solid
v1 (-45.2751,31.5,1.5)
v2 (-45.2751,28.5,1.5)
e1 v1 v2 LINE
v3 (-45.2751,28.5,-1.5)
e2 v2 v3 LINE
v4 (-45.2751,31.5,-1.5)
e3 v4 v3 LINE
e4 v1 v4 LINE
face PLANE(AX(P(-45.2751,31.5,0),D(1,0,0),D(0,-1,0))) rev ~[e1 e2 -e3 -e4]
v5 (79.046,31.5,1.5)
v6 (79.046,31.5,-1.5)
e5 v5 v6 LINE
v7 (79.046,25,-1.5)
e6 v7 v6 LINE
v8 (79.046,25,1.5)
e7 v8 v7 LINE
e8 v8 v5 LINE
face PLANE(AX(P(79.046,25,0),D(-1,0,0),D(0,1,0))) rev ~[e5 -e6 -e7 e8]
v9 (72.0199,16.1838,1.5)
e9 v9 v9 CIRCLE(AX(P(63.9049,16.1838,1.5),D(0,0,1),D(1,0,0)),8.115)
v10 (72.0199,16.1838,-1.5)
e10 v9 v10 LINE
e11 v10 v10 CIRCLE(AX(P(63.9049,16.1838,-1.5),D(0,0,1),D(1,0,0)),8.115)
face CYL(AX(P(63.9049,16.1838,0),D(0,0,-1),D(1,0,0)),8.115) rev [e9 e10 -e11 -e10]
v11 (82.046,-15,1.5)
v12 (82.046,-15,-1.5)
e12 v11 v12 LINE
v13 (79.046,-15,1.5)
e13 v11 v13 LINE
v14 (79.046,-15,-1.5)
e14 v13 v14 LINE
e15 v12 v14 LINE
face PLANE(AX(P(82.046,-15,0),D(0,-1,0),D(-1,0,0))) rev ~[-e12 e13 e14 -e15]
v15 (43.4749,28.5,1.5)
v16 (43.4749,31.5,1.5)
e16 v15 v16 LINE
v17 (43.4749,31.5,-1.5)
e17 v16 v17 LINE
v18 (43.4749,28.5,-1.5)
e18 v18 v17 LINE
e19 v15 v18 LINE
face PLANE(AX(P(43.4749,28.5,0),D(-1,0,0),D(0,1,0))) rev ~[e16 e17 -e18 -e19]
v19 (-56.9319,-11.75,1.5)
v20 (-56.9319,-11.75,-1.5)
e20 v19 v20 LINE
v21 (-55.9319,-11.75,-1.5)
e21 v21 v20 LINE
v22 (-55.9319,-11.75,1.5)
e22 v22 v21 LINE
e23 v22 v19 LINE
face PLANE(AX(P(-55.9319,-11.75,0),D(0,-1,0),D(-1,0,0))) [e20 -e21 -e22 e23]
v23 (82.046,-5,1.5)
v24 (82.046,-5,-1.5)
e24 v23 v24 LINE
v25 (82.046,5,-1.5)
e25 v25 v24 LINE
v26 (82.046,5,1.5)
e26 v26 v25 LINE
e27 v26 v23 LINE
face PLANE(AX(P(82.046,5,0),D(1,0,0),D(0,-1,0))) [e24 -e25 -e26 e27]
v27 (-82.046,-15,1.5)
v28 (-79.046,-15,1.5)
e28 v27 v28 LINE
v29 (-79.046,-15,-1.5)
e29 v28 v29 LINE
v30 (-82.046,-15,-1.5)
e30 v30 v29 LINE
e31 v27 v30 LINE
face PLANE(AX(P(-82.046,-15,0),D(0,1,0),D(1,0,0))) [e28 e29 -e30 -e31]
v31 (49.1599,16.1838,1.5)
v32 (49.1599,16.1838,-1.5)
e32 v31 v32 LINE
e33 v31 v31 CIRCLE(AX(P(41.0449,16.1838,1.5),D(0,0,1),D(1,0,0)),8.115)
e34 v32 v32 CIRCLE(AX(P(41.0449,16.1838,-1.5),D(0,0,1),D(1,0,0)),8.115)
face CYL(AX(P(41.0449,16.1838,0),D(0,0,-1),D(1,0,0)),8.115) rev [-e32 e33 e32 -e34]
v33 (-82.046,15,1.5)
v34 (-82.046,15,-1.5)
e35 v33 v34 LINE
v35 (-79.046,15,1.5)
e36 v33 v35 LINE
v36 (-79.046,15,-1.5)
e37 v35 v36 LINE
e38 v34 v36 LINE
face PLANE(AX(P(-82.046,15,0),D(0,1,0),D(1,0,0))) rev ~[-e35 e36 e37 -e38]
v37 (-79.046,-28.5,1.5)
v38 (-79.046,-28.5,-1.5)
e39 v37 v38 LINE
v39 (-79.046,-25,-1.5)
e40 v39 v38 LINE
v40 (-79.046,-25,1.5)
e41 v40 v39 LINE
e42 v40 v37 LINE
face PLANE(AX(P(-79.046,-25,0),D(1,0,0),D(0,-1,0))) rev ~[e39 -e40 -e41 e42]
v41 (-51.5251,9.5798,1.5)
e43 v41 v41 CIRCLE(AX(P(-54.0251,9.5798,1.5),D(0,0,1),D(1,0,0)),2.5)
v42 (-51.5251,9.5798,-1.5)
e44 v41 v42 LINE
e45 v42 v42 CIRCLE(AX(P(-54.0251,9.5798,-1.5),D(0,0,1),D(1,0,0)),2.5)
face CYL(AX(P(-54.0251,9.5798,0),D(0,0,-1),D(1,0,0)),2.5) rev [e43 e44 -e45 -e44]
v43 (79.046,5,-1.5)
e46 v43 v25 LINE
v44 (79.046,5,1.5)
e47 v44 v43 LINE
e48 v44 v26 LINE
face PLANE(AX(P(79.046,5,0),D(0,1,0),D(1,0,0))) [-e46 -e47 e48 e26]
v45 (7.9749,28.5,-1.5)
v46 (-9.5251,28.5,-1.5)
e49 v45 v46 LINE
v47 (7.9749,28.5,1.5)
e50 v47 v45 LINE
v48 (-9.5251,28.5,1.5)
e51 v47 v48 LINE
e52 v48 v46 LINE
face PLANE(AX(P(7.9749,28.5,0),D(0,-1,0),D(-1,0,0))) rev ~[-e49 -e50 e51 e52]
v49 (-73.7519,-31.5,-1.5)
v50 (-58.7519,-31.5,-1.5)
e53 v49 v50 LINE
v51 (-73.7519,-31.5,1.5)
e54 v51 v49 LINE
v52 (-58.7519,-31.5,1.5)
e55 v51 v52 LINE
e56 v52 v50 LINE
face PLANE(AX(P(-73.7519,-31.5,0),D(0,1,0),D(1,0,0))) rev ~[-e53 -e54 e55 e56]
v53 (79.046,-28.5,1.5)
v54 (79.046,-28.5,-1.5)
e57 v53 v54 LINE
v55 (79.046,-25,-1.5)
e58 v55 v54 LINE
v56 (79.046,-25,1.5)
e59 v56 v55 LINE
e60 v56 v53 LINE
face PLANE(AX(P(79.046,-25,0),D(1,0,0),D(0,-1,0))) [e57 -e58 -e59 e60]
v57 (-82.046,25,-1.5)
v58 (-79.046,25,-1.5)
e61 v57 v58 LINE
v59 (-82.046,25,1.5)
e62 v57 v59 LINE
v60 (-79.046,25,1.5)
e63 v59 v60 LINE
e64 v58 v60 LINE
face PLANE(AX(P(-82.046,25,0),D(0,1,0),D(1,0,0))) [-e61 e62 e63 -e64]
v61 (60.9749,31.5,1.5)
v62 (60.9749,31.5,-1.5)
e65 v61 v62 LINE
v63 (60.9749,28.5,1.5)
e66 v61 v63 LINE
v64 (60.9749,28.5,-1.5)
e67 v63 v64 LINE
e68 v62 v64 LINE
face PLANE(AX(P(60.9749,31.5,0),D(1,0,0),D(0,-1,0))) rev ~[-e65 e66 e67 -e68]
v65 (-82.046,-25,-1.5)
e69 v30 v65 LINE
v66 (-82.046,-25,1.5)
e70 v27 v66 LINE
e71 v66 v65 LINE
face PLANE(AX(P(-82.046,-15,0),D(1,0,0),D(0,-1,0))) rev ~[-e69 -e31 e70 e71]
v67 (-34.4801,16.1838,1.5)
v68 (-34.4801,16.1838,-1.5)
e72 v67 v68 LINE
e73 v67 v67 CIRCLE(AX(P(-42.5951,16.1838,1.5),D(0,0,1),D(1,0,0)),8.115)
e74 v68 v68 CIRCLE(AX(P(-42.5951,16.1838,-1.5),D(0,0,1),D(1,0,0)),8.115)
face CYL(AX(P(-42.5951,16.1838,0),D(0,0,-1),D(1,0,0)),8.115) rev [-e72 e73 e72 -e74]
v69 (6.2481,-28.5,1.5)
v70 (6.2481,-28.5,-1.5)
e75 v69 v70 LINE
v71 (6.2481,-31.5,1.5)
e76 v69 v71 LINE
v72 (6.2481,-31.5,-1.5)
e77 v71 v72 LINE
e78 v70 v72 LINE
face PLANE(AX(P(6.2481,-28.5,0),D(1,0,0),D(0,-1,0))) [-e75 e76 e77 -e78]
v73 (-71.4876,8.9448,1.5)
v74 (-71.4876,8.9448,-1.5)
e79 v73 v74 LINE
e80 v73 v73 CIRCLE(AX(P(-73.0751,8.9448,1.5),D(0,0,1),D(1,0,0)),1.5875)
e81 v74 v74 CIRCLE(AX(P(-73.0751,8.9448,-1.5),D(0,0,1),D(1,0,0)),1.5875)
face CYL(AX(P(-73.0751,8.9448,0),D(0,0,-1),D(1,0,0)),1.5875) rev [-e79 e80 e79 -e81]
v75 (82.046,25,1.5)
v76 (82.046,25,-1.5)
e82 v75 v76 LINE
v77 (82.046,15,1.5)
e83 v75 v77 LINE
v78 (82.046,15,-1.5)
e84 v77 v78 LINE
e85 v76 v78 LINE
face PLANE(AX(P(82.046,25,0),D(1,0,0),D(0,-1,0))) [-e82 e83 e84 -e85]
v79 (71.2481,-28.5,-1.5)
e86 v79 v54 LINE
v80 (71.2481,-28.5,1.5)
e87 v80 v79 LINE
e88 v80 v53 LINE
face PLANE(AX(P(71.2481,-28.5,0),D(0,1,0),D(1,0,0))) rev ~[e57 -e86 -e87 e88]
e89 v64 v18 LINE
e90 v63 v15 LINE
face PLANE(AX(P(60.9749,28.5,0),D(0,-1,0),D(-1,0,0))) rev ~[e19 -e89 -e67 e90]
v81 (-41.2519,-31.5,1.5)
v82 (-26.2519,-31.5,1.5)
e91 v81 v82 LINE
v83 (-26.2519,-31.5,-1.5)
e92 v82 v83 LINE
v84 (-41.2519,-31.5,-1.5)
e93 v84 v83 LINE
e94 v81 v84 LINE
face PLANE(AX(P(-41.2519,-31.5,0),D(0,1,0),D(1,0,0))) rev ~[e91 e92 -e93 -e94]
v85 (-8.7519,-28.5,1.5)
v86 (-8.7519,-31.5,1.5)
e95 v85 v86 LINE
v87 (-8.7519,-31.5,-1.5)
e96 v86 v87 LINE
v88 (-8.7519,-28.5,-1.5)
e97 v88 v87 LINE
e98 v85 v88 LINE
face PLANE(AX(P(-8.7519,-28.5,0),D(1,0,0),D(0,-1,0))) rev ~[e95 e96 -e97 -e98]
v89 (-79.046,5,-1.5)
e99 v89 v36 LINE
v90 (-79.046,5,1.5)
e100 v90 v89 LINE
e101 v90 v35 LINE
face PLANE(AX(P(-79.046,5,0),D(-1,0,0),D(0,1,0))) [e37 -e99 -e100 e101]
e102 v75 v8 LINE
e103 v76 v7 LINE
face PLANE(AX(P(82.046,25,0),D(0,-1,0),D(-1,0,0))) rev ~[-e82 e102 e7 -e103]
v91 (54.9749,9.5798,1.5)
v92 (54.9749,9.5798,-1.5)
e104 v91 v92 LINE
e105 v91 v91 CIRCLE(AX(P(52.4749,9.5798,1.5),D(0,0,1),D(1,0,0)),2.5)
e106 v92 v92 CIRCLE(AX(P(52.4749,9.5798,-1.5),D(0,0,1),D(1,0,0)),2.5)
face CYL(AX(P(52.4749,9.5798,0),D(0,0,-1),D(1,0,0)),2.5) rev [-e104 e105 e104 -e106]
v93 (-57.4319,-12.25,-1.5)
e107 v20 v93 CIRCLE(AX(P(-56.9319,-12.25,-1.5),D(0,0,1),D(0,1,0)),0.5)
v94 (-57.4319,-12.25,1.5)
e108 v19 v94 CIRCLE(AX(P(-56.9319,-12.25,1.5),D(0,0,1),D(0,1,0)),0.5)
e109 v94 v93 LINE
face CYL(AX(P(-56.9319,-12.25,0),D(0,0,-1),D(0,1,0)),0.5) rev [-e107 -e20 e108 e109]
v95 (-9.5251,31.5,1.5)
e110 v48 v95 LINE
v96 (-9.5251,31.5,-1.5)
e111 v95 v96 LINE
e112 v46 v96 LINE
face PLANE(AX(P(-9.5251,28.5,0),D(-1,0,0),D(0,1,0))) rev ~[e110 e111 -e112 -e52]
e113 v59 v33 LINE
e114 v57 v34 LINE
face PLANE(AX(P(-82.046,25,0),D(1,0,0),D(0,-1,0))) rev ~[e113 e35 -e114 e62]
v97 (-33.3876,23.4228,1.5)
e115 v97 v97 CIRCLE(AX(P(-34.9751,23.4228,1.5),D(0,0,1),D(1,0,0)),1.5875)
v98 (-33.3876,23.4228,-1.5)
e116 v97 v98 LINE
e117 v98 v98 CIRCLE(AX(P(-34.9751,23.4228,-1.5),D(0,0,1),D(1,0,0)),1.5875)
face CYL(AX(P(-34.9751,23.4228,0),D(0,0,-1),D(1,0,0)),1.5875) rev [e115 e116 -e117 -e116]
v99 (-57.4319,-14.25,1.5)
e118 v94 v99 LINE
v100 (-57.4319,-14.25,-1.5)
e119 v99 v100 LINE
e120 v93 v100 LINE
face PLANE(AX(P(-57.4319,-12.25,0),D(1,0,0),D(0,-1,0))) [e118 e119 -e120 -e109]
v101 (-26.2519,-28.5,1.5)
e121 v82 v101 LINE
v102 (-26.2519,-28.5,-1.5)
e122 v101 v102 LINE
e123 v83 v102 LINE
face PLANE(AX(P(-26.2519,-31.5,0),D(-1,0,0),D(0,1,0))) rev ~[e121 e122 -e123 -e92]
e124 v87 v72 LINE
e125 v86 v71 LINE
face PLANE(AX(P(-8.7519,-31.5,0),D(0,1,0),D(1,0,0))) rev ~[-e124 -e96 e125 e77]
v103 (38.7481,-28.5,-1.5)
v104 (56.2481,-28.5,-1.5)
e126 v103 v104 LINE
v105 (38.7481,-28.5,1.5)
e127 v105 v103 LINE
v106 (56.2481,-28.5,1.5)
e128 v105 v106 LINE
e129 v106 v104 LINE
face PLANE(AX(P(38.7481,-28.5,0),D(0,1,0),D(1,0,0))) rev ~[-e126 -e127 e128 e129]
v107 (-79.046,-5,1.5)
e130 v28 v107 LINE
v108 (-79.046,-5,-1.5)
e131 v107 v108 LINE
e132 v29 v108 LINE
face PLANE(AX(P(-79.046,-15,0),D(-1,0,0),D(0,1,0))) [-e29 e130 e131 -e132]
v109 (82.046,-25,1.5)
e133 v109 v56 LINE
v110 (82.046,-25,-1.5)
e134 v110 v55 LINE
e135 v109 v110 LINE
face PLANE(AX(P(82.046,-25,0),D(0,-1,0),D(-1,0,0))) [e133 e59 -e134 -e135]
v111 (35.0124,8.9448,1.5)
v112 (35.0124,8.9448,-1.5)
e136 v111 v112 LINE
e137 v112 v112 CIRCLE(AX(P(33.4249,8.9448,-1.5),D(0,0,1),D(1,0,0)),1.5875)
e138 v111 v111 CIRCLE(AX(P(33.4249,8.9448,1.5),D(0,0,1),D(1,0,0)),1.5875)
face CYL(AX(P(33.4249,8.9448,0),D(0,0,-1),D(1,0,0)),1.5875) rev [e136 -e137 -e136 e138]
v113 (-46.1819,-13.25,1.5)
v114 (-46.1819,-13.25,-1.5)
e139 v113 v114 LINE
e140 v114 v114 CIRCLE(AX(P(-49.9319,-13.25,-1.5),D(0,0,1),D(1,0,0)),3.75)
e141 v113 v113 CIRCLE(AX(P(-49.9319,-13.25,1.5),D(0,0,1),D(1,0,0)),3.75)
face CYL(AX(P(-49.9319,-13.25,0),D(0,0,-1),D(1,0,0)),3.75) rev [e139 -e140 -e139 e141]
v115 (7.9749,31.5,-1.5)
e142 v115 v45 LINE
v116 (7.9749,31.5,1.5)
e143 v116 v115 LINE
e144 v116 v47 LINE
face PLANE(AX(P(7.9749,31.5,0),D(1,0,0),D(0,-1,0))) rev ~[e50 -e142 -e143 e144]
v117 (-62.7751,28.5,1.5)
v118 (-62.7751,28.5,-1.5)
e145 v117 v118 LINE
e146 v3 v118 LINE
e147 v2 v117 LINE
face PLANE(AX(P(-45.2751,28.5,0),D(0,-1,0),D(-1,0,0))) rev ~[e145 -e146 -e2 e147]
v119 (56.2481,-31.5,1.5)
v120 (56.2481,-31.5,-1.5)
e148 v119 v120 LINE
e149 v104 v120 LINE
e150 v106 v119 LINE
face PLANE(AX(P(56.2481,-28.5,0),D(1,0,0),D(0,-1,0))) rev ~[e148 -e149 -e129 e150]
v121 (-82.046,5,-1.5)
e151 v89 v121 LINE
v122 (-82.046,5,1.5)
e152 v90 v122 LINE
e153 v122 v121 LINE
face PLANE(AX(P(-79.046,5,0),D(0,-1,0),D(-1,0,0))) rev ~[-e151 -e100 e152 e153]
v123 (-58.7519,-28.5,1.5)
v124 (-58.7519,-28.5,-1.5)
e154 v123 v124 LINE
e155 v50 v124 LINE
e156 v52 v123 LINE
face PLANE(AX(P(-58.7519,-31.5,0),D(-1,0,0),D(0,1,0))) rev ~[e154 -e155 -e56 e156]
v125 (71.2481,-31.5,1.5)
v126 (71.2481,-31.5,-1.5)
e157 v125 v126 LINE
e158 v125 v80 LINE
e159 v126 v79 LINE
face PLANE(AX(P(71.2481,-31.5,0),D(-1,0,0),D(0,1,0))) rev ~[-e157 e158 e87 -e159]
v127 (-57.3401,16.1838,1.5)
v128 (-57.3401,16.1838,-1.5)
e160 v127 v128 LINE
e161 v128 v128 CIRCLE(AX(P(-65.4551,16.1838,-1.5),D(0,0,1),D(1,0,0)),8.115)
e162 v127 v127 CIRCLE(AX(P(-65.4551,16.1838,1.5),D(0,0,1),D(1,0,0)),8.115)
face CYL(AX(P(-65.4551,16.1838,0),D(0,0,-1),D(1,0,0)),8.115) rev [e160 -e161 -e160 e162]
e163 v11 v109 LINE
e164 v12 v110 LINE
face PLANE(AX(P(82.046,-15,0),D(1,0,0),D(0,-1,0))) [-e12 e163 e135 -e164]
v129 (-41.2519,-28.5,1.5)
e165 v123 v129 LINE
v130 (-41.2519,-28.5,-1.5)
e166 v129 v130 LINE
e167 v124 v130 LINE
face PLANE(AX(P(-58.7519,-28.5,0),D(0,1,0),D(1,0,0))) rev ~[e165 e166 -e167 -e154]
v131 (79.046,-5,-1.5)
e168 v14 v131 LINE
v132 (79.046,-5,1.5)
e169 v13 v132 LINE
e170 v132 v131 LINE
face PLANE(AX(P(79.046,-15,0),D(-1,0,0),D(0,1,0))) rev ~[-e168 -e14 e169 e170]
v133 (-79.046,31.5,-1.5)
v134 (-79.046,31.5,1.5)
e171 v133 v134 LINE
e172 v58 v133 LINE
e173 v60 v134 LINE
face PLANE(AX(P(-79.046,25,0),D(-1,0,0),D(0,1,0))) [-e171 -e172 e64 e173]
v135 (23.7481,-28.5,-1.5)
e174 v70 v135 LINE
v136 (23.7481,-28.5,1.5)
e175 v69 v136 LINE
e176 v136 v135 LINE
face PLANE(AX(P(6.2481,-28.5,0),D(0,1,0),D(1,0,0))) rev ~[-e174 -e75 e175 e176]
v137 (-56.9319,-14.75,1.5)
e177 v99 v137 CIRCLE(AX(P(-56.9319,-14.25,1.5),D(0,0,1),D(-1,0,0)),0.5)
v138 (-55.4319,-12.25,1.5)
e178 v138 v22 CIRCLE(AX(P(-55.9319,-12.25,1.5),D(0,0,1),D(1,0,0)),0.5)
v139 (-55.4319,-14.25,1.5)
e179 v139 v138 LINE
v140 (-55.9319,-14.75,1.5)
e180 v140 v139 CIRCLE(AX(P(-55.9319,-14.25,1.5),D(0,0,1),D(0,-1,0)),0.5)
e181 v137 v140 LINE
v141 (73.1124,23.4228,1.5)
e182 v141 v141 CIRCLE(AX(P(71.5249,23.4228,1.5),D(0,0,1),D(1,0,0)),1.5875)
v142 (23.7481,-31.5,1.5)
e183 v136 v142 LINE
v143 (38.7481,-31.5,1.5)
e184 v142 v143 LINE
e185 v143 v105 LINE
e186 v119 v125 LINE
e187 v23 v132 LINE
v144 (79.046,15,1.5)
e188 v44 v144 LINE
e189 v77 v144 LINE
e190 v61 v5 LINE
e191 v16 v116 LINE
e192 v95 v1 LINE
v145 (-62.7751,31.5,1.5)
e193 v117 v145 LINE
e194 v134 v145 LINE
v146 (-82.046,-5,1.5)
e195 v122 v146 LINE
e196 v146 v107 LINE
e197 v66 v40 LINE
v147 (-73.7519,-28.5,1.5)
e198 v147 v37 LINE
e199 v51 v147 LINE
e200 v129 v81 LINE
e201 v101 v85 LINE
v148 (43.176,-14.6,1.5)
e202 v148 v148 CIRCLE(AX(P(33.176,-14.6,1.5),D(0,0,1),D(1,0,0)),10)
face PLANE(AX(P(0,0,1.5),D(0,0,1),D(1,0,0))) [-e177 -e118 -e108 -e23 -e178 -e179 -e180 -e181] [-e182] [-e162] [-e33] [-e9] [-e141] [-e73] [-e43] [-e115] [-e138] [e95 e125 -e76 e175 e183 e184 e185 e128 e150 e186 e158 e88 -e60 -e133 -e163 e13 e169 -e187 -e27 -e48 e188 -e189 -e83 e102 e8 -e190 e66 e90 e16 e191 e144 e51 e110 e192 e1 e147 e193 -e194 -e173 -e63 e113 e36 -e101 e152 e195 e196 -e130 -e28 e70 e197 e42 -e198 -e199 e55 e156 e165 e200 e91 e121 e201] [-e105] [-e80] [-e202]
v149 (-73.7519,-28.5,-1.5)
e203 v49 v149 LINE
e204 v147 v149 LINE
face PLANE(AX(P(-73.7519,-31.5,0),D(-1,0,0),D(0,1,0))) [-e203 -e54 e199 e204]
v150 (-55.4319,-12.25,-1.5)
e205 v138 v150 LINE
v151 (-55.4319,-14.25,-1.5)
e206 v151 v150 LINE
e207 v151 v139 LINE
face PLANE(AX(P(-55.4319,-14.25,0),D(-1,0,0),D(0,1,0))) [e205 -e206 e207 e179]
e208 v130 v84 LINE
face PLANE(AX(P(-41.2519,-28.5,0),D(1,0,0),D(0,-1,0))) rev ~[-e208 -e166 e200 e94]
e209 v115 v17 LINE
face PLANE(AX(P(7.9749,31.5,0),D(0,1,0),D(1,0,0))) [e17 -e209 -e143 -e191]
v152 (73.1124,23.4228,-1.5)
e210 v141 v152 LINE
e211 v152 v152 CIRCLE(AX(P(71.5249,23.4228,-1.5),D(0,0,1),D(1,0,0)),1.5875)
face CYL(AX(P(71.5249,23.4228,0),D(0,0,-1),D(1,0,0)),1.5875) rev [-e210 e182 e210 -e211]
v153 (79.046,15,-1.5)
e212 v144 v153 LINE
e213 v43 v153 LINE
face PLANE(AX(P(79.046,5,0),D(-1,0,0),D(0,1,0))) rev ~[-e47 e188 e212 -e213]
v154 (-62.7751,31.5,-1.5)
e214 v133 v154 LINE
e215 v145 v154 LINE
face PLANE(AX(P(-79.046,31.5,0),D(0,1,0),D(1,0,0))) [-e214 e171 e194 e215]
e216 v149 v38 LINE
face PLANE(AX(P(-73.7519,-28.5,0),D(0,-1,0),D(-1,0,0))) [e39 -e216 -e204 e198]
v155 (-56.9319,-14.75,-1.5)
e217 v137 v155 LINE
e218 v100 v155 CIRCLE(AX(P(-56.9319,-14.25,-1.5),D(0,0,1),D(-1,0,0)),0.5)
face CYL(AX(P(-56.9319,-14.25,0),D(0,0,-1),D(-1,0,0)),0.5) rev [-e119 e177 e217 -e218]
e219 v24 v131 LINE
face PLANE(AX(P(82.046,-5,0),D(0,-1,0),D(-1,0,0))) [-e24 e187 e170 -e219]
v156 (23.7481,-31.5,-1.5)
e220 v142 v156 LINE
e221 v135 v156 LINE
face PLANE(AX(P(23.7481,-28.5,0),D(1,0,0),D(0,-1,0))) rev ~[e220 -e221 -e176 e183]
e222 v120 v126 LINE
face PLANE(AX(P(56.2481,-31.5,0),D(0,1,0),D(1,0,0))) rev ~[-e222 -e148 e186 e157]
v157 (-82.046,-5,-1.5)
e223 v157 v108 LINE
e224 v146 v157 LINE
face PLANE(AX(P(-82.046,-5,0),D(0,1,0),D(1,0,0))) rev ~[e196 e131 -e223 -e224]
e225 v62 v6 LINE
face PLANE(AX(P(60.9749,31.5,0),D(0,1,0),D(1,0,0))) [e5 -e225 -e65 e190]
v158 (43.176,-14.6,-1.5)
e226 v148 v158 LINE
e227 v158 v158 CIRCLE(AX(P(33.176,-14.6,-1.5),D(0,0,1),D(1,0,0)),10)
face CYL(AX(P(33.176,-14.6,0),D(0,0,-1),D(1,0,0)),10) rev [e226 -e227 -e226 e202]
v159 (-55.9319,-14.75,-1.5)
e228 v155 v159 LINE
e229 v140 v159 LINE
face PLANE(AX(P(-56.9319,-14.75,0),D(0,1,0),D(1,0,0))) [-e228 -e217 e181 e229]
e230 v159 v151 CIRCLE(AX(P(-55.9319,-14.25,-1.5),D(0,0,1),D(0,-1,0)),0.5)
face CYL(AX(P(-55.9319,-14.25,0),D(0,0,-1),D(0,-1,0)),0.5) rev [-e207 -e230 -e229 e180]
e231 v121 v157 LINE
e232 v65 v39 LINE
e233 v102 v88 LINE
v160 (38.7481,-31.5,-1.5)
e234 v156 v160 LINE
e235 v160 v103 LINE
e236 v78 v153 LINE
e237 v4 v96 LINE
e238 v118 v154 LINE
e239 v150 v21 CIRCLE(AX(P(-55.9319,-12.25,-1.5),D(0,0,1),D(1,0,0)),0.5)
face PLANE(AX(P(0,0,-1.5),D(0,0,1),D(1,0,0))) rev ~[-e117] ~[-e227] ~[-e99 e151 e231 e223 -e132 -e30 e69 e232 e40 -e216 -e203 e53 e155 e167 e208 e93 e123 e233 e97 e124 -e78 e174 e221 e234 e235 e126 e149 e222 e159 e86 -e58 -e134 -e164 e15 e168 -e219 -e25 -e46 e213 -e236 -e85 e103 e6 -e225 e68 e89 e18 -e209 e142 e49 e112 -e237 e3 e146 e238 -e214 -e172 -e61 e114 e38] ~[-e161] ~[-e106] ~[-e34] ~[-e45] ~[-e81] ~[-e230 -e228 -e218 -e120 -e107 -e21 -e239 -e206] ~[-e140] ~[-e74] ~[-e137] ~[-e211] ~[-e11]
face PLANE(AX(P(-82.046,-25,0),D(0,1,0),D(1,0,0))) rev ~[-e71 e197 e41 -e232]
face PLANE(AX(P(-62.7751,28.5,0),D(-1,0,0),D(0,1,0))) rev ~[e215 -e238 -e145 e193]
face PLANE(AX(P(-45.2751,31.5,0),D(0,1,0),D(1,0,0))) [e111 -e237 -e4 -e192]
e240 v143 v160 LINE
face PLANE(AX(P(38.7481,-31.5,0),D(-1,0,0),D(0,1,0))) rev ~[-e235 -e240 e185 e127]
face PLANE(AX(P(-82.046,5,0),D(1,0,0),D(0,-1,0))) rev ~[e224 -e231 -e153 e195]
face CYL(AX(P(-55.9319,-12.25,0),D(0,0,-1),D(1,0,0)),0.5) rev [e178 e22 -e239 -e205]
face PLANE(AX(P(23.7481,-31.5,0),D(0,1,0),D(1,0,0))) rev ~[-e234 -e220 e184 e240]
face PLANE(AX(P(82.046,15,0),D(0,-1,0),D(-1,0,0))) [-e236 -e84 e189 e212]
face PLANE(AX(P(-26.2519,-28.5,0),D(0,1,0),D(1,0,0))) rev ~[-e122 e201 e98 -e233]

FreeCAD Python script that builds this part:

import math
import FreeCAD as App
import Part
import Sketcher

V = App.Vector

doc = App.newDocument("Part")
body = doc.addObject("PartDesign::Body", "Body")

sketch1 = body.newObject("Sketcher::SketchObject", "Sketch")
sketch1.AttachmentSupport = (doc.getObject("XY_Plane"), [""])
sketch1.MapMode = "FlatFace"
sketch1.addGeometry(Part.LineSegment(V(-62.8, 31.5, 0), V(-79, 31.5, 0)), False)
sketch1.addGeometry(Part.LineSegment(V(-79, 31.5, 0), V(-79, 25, 0)), False)
sketch1.addGeometry(Part.LineSegment(V(-79, 25, 0), V(-82, 25, 0)), False)
sketch1.addGeometry(Part.LineSegment(V(-82, 25, 0), V(-82, 15, 0)), False)
sketch1.addGeometry(Part.LineSegment(V(-82, 15, 0), V(-79, 15, 0)), False)
sketch1.addGeometry(Part.LineSegment(V(-79, 15, 0), V(-79, 5, 0)), False)
sketch1.addGeometry(Part.LineSegment(V(-79, 5, 0), V(-82, 5, 0)), False)
sketch1.addGeometry(Part.LineSegment(V(-82, 5, 0), V(-82, -5, 0)), False)
sketch1.addGeometry(Part.LineSegment(V(-82, -5, 0), V(-79, -5, 0)), False)
sketch1.addGeometry(Part.LineSegment(V(-79, -5, 0), V(-79, -15, 0)), False)
sketch1.addGeometry(Part.LineSegment(V(-79, -15, 0), V(-82, -15, 0)), False)
sketch1.addGeometry(Part.LineSegment(V(-82, -15, 0), V(-82, -25, 0)), False)
sketch1.addGeometry(Part.LineSegment(V(-82, -25, 0), V(-79, -25, 0)), False)
sketch1.addGeometry(Part.LineSegment(V(-79, -25, 0), V(-79, -28.5, 0)), False)
sketch1.addGeometry(Part.LineSegment(V(-79, -28.5, 0), V(-73.8, -28.5, 0)), False)
sketch1.addGeometry(Part.LineSegment(V(-73.8, -28.5, 0), V(-73.8, -31.5, 0)), False)
sketch1.addGeometry(Part.LineSegment(V(-73.8, -31.5, 0), V(-58.8, -31.5, 0)), False)
sketch1.addGeometry(Part.LineSegment(V(-58.8, -31.5, 0), V(-58.8, -28.5, 0)), False)
sketch1.addGeometry(Part.LineSegment(V(-58.8, -28.5, 0), V(-41.3, -28.5, 0)), False)
sketch1.addGeometry(Part.LineSegment(V(-41.3, -28.5, 0), V(-41.3, -31.5, 0)), False)
sketch1.addGeometry(Part.LineSegment(V(-41.3, -31.5, 0), V(-26.3, -31.5, 0)), False)
sketch1.addGeometry(Part.LineSegment(V(-26.3, -31.5, 0), V(-26.3, -28.5, 0)), False)
sketch1.addGeometry(Part.LineSegment(V(-26.3, -28.5, 0), V(-8.8, -28.5, 0)), False)
sketch1.addGeometry(Part.LineSegment(V(-8.8, -28.5, 0), V(-8.8, -31.5, 0)), False)
sketch1.addGeometry(Part.LineSegment(V(-8.8, -31.5, 0), V(6.2, -31.5, 0)), False)
sketch1.addGeometry(Part.LineSegment(V(6.2, -31.5, 0), V(6.2, -28.5, 0)), False)
sketch1.addGeometry(Part.LineSegment(V(6.2, -28.5, 0), V(23.7, -28.5, 0)), False)
sketch1.addGeometry(Part.LineSegment(V(23.7, -28.5, 0), V(23.7, -31.5, 0)), False)
sketch1.addGeometry(Part.LineSegment(V(23.7, -31.5, 0), V(38.7, -31.5, 0)), False)
sketch1.addGeometry(Part.LineSegment(V(38.7, -31.5, 0), V(38.7, -28.5, 0)), False)
sketch1.addGeometry(Part.LineSegment(V(38.7, -28.5, 0), V(56.2, -28.5, 0)), False)
sketch1.addGeometry(Part.LineSegment(V(56.2, -28.5, 0), V(56.2, -31.5, 0)), False)
sketch1.addGeometry(Part.LineSegment(V(56.2, -31.5, 0), V(71.2, -31.5, 0)), False)
sketch1.addGeometry(Part.LineSegment(V(71.2, -31.5, 0), V(71.2, -28.5, 0)), False)
sketch1.addGeometry(Part.LineSegment(V(71.2, -28.5, 0), V(79, -28.5, 0)), False)
sketch1.addGeometry(Part.LineSegment(V(79, -28.5, 0), V(79, -25, 0)), False)
sketch1.addGeometry(Part.LineSegment(V(79, -25, 0), V(82, -25, 0)), False)
sketch1.addGeometry(Part.LineSegment(V(82, -25, 0), V(82, -15, 0)), False)
sketch1.addGeometry(Part.LineSegment(V(82, -15, 0), V(79, -15, 0)), False)
sketch1.addGeometry(Part.LineSegment(V(79, -15, 0), V(79, -5, 0)), False)
sketch1.addGeometry(Part.LineSegment(V(79, -5, 0), V(82, -5, 0)), False)
sketch1.addGeometry(Part.LineSegment(V(82, -5, 0), V(82, 5, 0)), False)
sketch1.addGeometry(Part.LineSegment(V(82, 5, 0), V(79, 5, 0)), False)
sketch1.addGeometry(Part.LineSegment(V(79, 5, 0), V(79, 15, 0)), False)
sketch1.addGeometry(Part.LineSegment(V(79, 15, 0), V(82, 15, 0)), False)
sketch1.addGeometry(Part.LineSegment(V(82, 15, 0), V(82, 25, 0)), False)
sketch1.addGeometry(Part.LineSegment(V(82, 25, 0), V(79, 25, 0)), False)
sketch1.addGeometry(Part.LineSegment(V(79, 25, 0), V(79, 31.5, 0)), False)
sketch1.addGeometry(Part.LineSegment(V(79, 31.5, 0), V(61, 31.5, 0)), False)
sketch1.addGeometry(Part.LineSegment(V(61, 31.5, 0), V(61, 28.5, 0)), False)
sketch1.addGeometry(Part.LineSegment(V(61, 28.5, 0), V(43.5, 28.5, 0)), False)
sketch1.addGeometry(Part.LineSegment(V(43.5, 28.5, 0), V(43.5, 31.5, 0)), False)
sketch1.addGeometry(Part.LineSegment(V(43.5, 31.5, 0), V(8, 31.5, 0)), False)
sketch1.addGeometry(Part.LineSegment(V(8, 31.5, 0), V(8, 28.5, 0)), False)
sketch1.addGeometry(Part.LineSegment(V(8, 28.5, 0), V(-9.5, 28.5, 0)), False)
sketch1.addGeometry(Part.LineSegment(V(-9.5, 28.5, 0), V(-9.5, 31.5, 0)), False)
sketch1.addGeometry(Part.LineSegment(V(-9.5, 31.5, 0), V(-45.3, 31.5, 0)), False)
sketch1.addGeometry(Part.LineSegment(V(-45.3, 31.5, 0), V(-45.3, 28.5, 0)), False)
sketch1.addGeometry(Part.LineSegment(V(-45.3, 28.5, 0), V(-62.8, 28.5, 0)), False)
sketch1.addGeometry(Part.LineSegment(V(-62.8, 28.5, 0), V(-62.8, 31.5, 0)), False)
sketch1.addGeometry(Part.LineSegment(V(-55.4, -12.2, 0), V(-55.4, -14.2, 0)), False)
sketch1.addGeometry(Part.ArcOfCircle(Part.Circle(V(-55.9, -14.2, 0), V(0, 0, 1), 0.5), math.radians(-90), math.radians(0)), False)
sketch1.addGeometry(Part.LineSegment(V(-55.9, -14.8, 0), V(-56.9, -14.8, 0)), False)
sketch1.addGeometry(Part.ArcOfCircle(Part.Circle(V(-56.9, -14.2, 0), V(0, 0, 1), 0.5), math.radians(180), math.radians(270)), False)
sketch1.addGeometry(Part.LineSegment(V(-57.4, -14.2, 0), V(-57.4, -12.2, 0)), False)
sketch1.addGeometry(Part.ArcOfCircle(Part.Circle(V(-56.9, -12.2, 0), V(0, 0, 1), 0.5), math.radians(90), math.radians(180)), False)
sketch1.addGeometry(Part.LineSegment(V(-56.9, -11.8, 0), V(-55.9, -11.8, 0)), False)
sketch1.addGeometry(Part.ArcOfCircle(Part.Circle(V(-55.9, -12.2, 0), V(0, 0, 1), 0.5), math.radians(0), math.radians(90)), False)
sketch1.addGeometry(Part.Circle(V(-49.9, -13.2, 0), V(0, 0, 1), 3.8), False)
sketch1.addGeometry(Part.Circle(V(33.2, -14.6, 0), V(0, 0, 1), 10), False)
sketch1.addGeometry(Part.Circle(V(-73.1, 8.9, 0), V(0, 0, 1), 1.6), False)
sketch1.addGeometry(Part.Circle(V(-54, 9.6, 0), V(0, 0, 1), 2.5), False)
sketch1.addGeometry(Part.Circle(V(-65.5, 16.2, 0), V(0, 0, 1), 8.1), False)
sketch1.addGeometry(Part.Circle(V(-42.6, 16.2, 0), V(0, 0, 1), 8.1), False)
sketch1.addGeometry(Part.Circle(V(-35, 23.4, 0), V(0, 0, 1), 1.6), False)
sketch1.addGeometry(Part.Circle(V(33.4, 8.9, 0), V(0, 0, 1), 1.6), False)
sketch1.addGeometry(Part.Circle(V(52.5, 9.6, 0), V(0, 0, 1), 2.5), False)
sketch1.addGeometry(Part.Circle(V(41, 16.2, 0), V(0, 0, 1), 8.1), False)
sketch1.addGeometry(Part.Circle(V(63.9, 16.2, 0), V(0, 0, 1), 8.1), False)
sketch1.addGeometry(Part.Circle(V(71.5, 23.4, 0), V(0, 0, 1), 1.6), False)
sketch1.addConstraint(Sketcher.Constraint("Coincident", 0, 2, 1, 1))
sketch1.addConstraint(Sketcher.Constraint("Coincident", 1, 2, 2, 1))
sketch1.addConstraint(Sketcher.Constraint("Coincident", 2, 2, 3, 1))
sketch1.addConstraint(Sketcher.Constraint("Coincident", 3, 2, 4, 1))
sketch1.addConstraint(Sketcher.Constraint("Coincident", 4, 2, 5, 1))
sketch1.addConstraint(Sketcher.Constraint("Coincident", 5, 2, 6, 1))
sketch1.addConstraint(Sketcher.Constraint("Coincident", 6, 2, 7, 1))
sketch1.addConstraint(Sketcher.Constraint("Coincident", 7, 2, 8, 1))
sketch1.addConstraint(Sketcher.Constraint("Coincident", 8, 2, 9, 1))
sketch1.addConstraint(Sketcher.Constraint("Coincident", 9, 2, 10, 1))
sketch1.addConstraint(Sketcher.Constraint("Coincident", 10, 2, 11, 1))
sketch1.addConstraint(Sketcher.Constraint("Coincident", 11, 2, 12, 1))
sketch1.addConstraint(Sketcher.Constraint("Coincident", 12, 2, 13, 1))
sketch1.addConstraint(Sketcher.Constraint("Coincident", 13, 2, 14, 1))
sketch1.addConstraint(Sketcher.Constraint("Coincident", 14, 2, 15, 1))
sketch1.addConstraint(Sketcher.Constraint("Coincident", 15, 2, 16, 1))
sketch1.addConstraint(Sketcher.Constraint("Coincident", 16, 2, 17, 1))
sketch1.addConstraint(Sketcher.Constraint("Coincident", 17, 2, 18, 1))
sketch1.addConstraint(Sketcher.Constraint("Coincident", 18, 2, 19, 1))
sketch1.addConstraint(Sketcher.Constraint("Coincident", 19, 2, 20, 1))
sketch1.addConstraint(Sketcher.Constraint("Coincident", 20, 2, 21, 1))
sketch1.addConstraint(Sketcher.Constraint("Coincident", 21, 2, 22, 1))
sketch1.addConstraint(Sketcher.Constraint("Coincident", 22, 2, 23, 1))
sketch1.addConstraint(Sketcher.Constraint("Coincident", 23, 2, 24, 1))
sketch1.addConstraint(Sketcher.Constraint("Coincident", 24, 2, 25, 1))
sketch1.addConstraint(Sketcher.Constraint("Coincident", 25, 2, 26, 1))
sketch1.addConstraint(Sketcher.Constraint("Coincident", 26, 2, 27, 1))
sketch1.addConstraint(Sketcher.Constraint("Coincident", 27, 2, 28, 1))
sketch1.addConstraint(Sketcher.Constraint("Coincident", 28, 2, 29, 1))
sketch1.addConstraint(Sketcher.Constraint("Coincident", 29, 2, 30, 1))
sketch1.addConstraint(Sketcher.Constraint("Coincident", 30, 2, 31, 1))
sketch1.addConstraint(Sketcher.Constraint("Coincident", 31, 2, 32, 1))
sketch1.addConstraint(Sketcher.Constraint("Coincident", 32, 2, 33, 1))
sketch1.addConstraint(Sketcher.Constraint("Coincident", 33, 2, 34, 1))
sketch1.addConstraint(Sketcher.Constraint("Coincident", 34, 2, 35, 1))
sketch1.addConstraint(Sketcher.Constraint("Coincident", 35, 2, 36, 1))
sketch1.addConstraint(Sketcher.Constraint("Coincident", 36, 2, 37, 1))
sketch1.addConstraint(Sketcher.Constraint("Coincident", 37, 2, 38, 1))
sketch1.addConstraint(Sketcher.Constraint("Coincident", 38, 2, 39, 1))
sketch1.addConstraint(Sketcher.Constraint("Coincident", 39, 2, 40, 1))
sketch1.addConstraint(Sketcher.Constraint("Coincident", 40, 2, 41, 1))
sketch1.addConstraint(Sketcher.Constraint("Coincident", 41, 2, 42, 1))
sketch1.addConstraint(Sketcher.Constraint("Coincident", 42, 2, 43, 1))
sketch1.addConstraint(Sketcher.Constraint("Coincident", 43, 2, 44, 1))
sketch1.addConstraint(Sketcher.Constraint("Coincident", 44, 2, 45, 1))
sketch1.addConstraint(Sketcher.Constraint("Coincident", 45, 2, 46, 1))
sketch1.addConstraint(Sketcher.Constraint("Coincident", 46, 2, 47, 1))
sketch1.addConstraint(Sketcher.Constraint("Coincident", 47, 2, 48, 1))
sketch1.addConstraint(Sketcher.Constraint("Coincident", 48, 2, 49, 1))
sketch1.addConstraint(Sketcher.Constraint("Coincident", 49, 2, 50, 1))
sketch1.addConstraint(Sketcher.Constraint("Coincident", 50, 2, 51, 1))
sketch1.addConstraint(Sketcher.Constraint("Coincident", 51, 2, 52, 1))
sketch1.addConstraint(Sketcher.Constraint("Coincident", 52, 2, 53, 1))
sketch1.addConstraint(Sketcher.Constraint("Coincident", 53, 2, 54, 1))
sketch1.addConstraint(Sketcher.Constraint("Coincident", 54, 2, 55, 1))
sketch1.addConstraint(Sketcher.Constraint("Coincident", 55, 2, 56, 1))
sketch1.addConstraint(Sketcher.Constraint("Coincident", 56, 2, 57, 1))
sketch1.addConstraint(Sketcher.Constraint("Coincident", 57, 2, 58, 1))
sketch1.addConstraint(Sketcher.Constraint("Coincident", 58, 2, 59, 1))
sketch1.addConstraint(Sketcher.Constraint("Coincident", 59, 2, 0, 1))
sketch1.addConstraint(Sketcher.Constraint("Tangent", 60, 2, 61, 2))
sketch1.addConstraint(Sketcher.Constraint("Tangent", 61, 1, 62, 1))
sketch1.addConstraint(Sketcher.Constraint("Tangent", 62, 2, 63, 2))
sketch1.addConstraint(Sketcher.Constraint("Tangent", 63, 1, 64, 1))
sketch1.addConstraint(Sketcher.Constraint("Tangent", 64, 2, 65, 2))
sketch1.addConstraint(Sketcher.Constraint("Tangent", 65, 1, 66, 1))
sketch1.addConstraint(Sketcher.Constraint("Tangent", 66, 2, 67, 2))
sketch1.addConstraint(Sketcher.Constraint("Tangent", 67, 1, 60, 1))
sketch1.addConstraint(Sketcher.Constraint("Horizontal", 0))
sketch1.addConstraint(Sketcher.Constraint("Vertical", 1))
sketch1.addConstraint(Sketcher.Constraint("Horizontal", 2))
sketch1.addConstraint(Sketcher.Constraint("Vertical", 3))
sketch1.addConstraint(Sketcher.Constraint("Horizontal", 4))
sketch1.addConstraint(Sketcher.Constraint("Vertical", 5))
sketch1.addConstraint(Sketcher.Constraint("Horizontal", 6))
sketch1.addConstraint(Sketcher.Constraint("Vertical", 7))
sketch1.addConstraint(Sketcher.Constraint("Horizontal", 8))
sketch1.addConstraint(Sketcher.Constraint("Vertical", 9))
sketch1.addConstraint(Sketcher.Constraint("Horizontal", 10))
sketch1.addConstraint(Sketcher.Constraint("Vertical", 11))
sketch1.addConstraint(Sketcher.Constraint("Horizontal", 12))
sketch1.addConstraint(Sketcher.Constraint("Vertical", 13))
sketch1.addConstraint(Sketcher.Constraint("Horizontal", 14))
sketch1.addConstraint(Sketcher.Constraint("Vertical", 15))
sketch1.addConstraint(Sketcher.Constraint("Horizontal", 16))
sketch1.addConstraint(Sketcher.Constraint("Vertical", 17))
sketch1.addConstraint(Sketcher.Constraint("Horizontal", 18))
sketch1.addConstraint(Sketcher.Constraint("Vertical", 19))
sketch1.addConstraint(Sketcher.Constraint("Horizontal", 20))
sketch1.addConstraint(Sketcher.Constraint("Vertical", 21))
sketch1.addConstraint(Sketcher.Constraint("Horizontal", 22))
sketch1.addConstraint(Sketcher.Constraint("Vertical", 23))
sketch1.addConstraint(Sketcher.Constraint("Horizontal", 24))
sketch1.addConstraint(Sketcher.Constraint("Vertical", 25))
sketch1.addConstraint(Sketcher.Constraint("Horizontal", 26))
sketch1.addConstraint(Sketcher.Constraint("Vertical", 27))
sketch1.addConstraint(Sketcher.Constraint("Horizontal", 28))
sketch1.addConstraint(Sketcher.Constraint("Vertical", 29))
sketch1.addConstraint(Sketcher.Constraint("Horizontal", 30))
sketch1.addConstraint(Sketcher.Constraint("Vertical", 31))
sketch1.addConstraint(Sketcher.Constraint("Horizontal", 32))
sketch1.addConstraint(Sketcher.Constraint("Vertical", 33))
sketch1.addConstraint(Sketcher.Constraint("Horizontal", 34))
sketch1.addConstraint(Sketcher.Constraint("Vertical", 35))
sketch1.addConstraint(Sketcher.Constraint("Horizontal", 36))
sketch1.addConstraint(Sketcher.Constraint("Vertical", 37))
sketch1.addConstraint(Sketcher.Constraint("Horizontal", 38))
sketch1.addConstraint(Sketcher.Constraint("Vertical", 39))
sketch1.addConstraint(Sketcher.Constraint("Horizontal", 40))
sketch1.addConstraint(Sketcher.Constraint("Vertical", 41))
sketch1.addConstraint(Sketcher.Constraint("Horizontal", 42))
sketch1.addConstraint(Sketcher.Constraint("Vertical", 43))
sketch1.addConstraint(Sketcher.Constraint("Horizontal", 44))
sketch1.addConstraint(Sketcher.Constraint("Vertical", 45))
sketch1.addConstraint(Sketcher.Constraint("Horizontal", 46))
sketch1.addConstraint(Sketcher.Constraint("Vertical", 47))
sketch1.addConstraint(Sketcher.Constraint("Horizontal", 48))
sketch1.addConstraint(Sketcher.Constraint("Vertical", 49))
sketch1.addConstraint(Sketcher.Constraint("Horizontal", 50))
sketch1.addConstraint(Sketcher.Constraint("Vertical", 51))
sketch1.addConstraint(Sketcher.Constraint("Horizontal", 52))
sketch1.addConstraint(Sketcher.Constraint("Vertical", 53))
sketch1.addConstraint(Sketcher.Constraint("Horizontal", 54))
sketch1.addConstraint(Sketcher.Constraint("Vertical", 55))
sketch1.addConstraint(Sketcher.Constraint("Horizontal", 56))
sketch1.addConstraint(Sketcher.Constraint("Vertical", 57))
sketch1.addConstraint(Sketcher.Constraint("Horizontal", 58))
sketch1.addConstraint(Sketcher.Constraint("Vertical", 59))
sketch1.addConstraint(Sketcher.Constraint("Vertical", 60))
sketch1.addConstraint(Sketcher.Constraint("Horizontal", 62))
sketch1.addConstraint(Sketcher.Constraint("Vertical", 64))
sketch1.addConstraint(Sketcher.Constraint("Horizontal", 66))
sketch1.addConstraint(Sketcher.Constraint("Equal", 61, 63))
sketch1.addConstraint(Sketcher.Constraint("Equal", 63, 65))
sketch1.addConstraint(Sketcher.Constraint("Equal", 65, 67))
sketch1.addConstraint(Sketcher.Constraint("Equal", 72, 73))
sketch1.addConstraint(Sketcher.Constraint("Equal", 70, 74))
sketch1.addConstraint(Sketcher.Constraint("Equal", 74, 75))
sketch1.addConstraint(Sketcher.Constraint("Equal", 71, 76))
sketch1.addConstraint(Sketcher.Constraint("Equal", 73, 77))
sketch1.addConstraint(Sketcher.Constraint("Equal", 77, 78))
sketch1.addConstraint(Sketcher.Constraint("Equal", 75, 79))
sketch1.addConstraint(Sketcher.Constraint("Symmetric", 1, 2, 35, 2, -1, 1))
sketch1.addConstraint(Sketcher.Constraint("Symmetric", 3, 2, 37, 2, -1, 1))
sketch1.addConstraint(Sketcher.Constraint("Symmetric", 5, 2, 39, 2, -1, 1))
sketch1.addConstraint(Sketcher.Constraint("Symmetric", 7, 2, 41, 2, -1, 1))
sketch1.addConstraint(Sketcher.Constraint("Symmetric", 9, 2, 43, 2, -1, 1))
sketch1.addConstraint(Sketcher.Constraint("Symmetric", 11, 2, 45, 2, -1, 1))
sketch1.addConstraint(Sketcher.Constraint("Symmetric", 13, 2, 34, 2, -2))
sketch1.addConstraint(Sketcher.Constraint("Symmetric", 11, 2, 36, 2, -2))
sketch1.addConstraint(Sketcher.Constraint("Symmetric", 9, 2, 38, 2, -2))
sketch1.addConstraint(Sketcher.Constraint("Symmetric", 0, 2, 47, 2, -2))
sketch1.addConstraint(Sketcher.Constraint("Horizontal", 72, 3, 73, 3))
sketch1.addConstraint(Sketcher.Constraint("Horizontal", 70, 3, 75, 3))
sketch1.addConstraint(Sketcher.Constraint("Horizontal", 71, 3, 76, 3))
sketch1.addConstraint(Sketcher.Constraint("Horizontal", 73, 3, 77, 3))
sketch1.addConstraint(Sketcher.Constraint("Horizontal", 77, 3, 78, 3))
sketch1.addConstraint(Sketcher.Constraint("Horizontal", 74, 3, 79, 3))
sketch1.addConstraint(Sketcher.Constraint("Horizontal", 14, 2, 17, 2))
sketch1.addConstraint(Sketcher.Constraint("Horizontal", 16, 2, 19, 2))
sketch1.addConstraint(Sketcher.Constraint("Horizontal", 18, 2, 21, 2))
sketch1.addConstraint(Sketcher.Constraint("Horizontal", 20, 2, 23, 2))
sketch1.addConstraint(Sketcher.Constraint("Horizontal", 22, 2, 25, 2))
sketch1.addConstraint(Sketcher.Constraint("Horizontal", 24, 2, 27, 2))
sketch1.addConstraint(Sketcher.Constraint("Horizontal", 26, 2, 29, 2))
sketch1.addConstraint(Sketcher.Constraint("Horizontal", 28, 2, 31, 2))
sketch1.addConstraint(Sketcher.Constraint("Horizontal", 8, 2, 39, 2))
sketch1.addConstraint(Sketcher.Constraint("Horizontal", 48, 2, 51, 2))
sketch1.addConstraint(Sketcher.Constraint("Horizontal", 50, 2, 53, 2))
sketch1.addConstraint(Sketcher.Constraint("Horizontal", 52, 2, 55, 2))
sketch1.addConstraint(Sketcher.Constraint("Horizontal", 54, 2, 57, 2))
sketch1.addConstraint(Sketcher.Constraint("Vertical", 1, 2, 4, 2))
sketch1.addConstraint(Sketcher.Constraint("Vertical", 3, 2, 6, 2))
sketch1.addConstraint(Sketcher.Constraint("Equal", 16, 20))
sketch1.addConstraint(Sketcher.Constraint("Equal", 18, 22))
sketch1.addConstraint(Sketcher.Constraint("Equal", 20, 24))
sketch1.addConstraint(Sketcher.Constraint("Equal", 22, 26))
sketch1.addConstraint(Sketcher.Constraint("Equal", 24, 28))
sketch1.addConstraint(Sketcher.Constraint("Equal", 26, 30))
sketch1.addConstraint(Sketcher.Constraint("Equal", 28, 32))
sketch1.addConstraint(Sketcher.Constraint("Equal", 30, 50))
sketch1.addConstraint(Sketcher.Constraint("Equal", 50, 54))
sketch1.addConstraint(Sketcher.Constraint("Equal", 54, 58))
sketch1.addConstraint(Sketcher.Constraint("Equal", 3, 5))
sketch1.addConstraint(Sketcher.Constraint("Equal", 5, 7))
sketch1.addConstraint(Sketcher.Constraint("Equal", 46, 15))
sketch1.addConstraint(Sketcher.Constraint("Equal", 33, 49))
sketch1.addConstraint(Sketcher.Constraint("Diameter", 69, 20.0))
sketch1.addConstraint(Sketcher.Constraint("DistanceX", 2, 2, 2, 1, 3.0))
sketch1.addConstraint(Sketcher.Constraint("DistanceX", 16, 1, 16, 2, 15.0))
sketch1.addConstraint(Sketcher.Constraint("DistanceY", 3, 2, 3, 1, 10.0))
sketch1.addConstraint(Sketcher.Constraint("Diameter", 71, 5.0))
sketch1.addConstraint(Sketcher.Constraint("Diameter", 68, 7.5))
sketch1.addConstraint(Sketcher.Constraint("Radius", 61, 0.5))
sketch1.addConstraint(Sketcher.Constraint("Diameter", 72, 16.23))
sketch1.addConstraint(Sketcher.Constraint("DistanceX", 62, 2, 62, 1, 1.0))
sketch1.addConstraint(Sketcher.Constraint("DistanceY", 60, 2, 60, 1, 2.0))
sketch1.addConstraint(Sketcher.Constraint("Diameter", 70, 3.175))
sketch1.addConstraint(Sketcher.Constraint("DistanceX", 18, 1, 18, 2, 17.5))
sketch1.addConstraint(Sketcher.Constraint("DistanceX", 52, 2, 52, 1, 35.5))
sketch1.addConstraint(Sketcher.Constraint("DistanceY", 1, 2, 1, 1, 6.5))
sketch1.addConstraint(Sketcher.Constraint("DistanceY", 13, 2, 13, 1, 3.5))
sketch1.addConstraint(Sketcher.Constraint("DistanceX", 56, 2, 56, 1, 35.75))
sketch1.addConstraint(Sketcher.Constraint("DistanceY", 69, 3, -1, 1, 14.6))
sketch1.addConstraint(Sketcher.Constraint("DistanceX", 0, 2, 0, 1, 16.271))
sketch1.addConstraint(Sketcher.Constraint("DistanceX", 14, 1, 14, 2, 5.294))
sketch1.addConstraint(Sketcher.Constraint("DistanceX", 34, 1, 34, 2, 7.798))
sketch1.addConstraint(Sketcher.Constraint("DistanceY", 61, 3, -1, 1, 14.25))
sketch1.addConstraint(Sketcher.Constraint("DistanceY", 68, 3, -1, 1, 13.25))
sketch1.addConstraint(Sketcher.Constraint("DistanceX", 61, 3, -1, 1, 55.932))
sketch1.addConstraint(Sketcher.Constraint("DistanceX", 68, 3, -1, 1, 49.932))
sketch1.addConstraint(Sketcher.Constraint("DistanceX", -1, 1, 69, 3, 33.176))
sketch1.addConstraint(Sketcher.Constraint("DistanceX", 70, 3, -1, 1, 73.075))
sketch1.addConstraint(Sketcher.Constraint("DistanceX", 71, 3, -1, 1, 54.025))
sketch1.addConstraint(Sketcher.Constraint("DistanceX", 72, 3, -1, 1, 65.455))
sketch1.addConstraint(Sketcher.Constraint("DistanceX", 73, 3, -1, 1, 42.595))
sketch1.addConstraint(Sketcher.Constraint("DistanceX", 74, 3, -1, 1, 34.975))
sketch1.addConstraint(Sketcher.Constraint("DistanceX", -1, 1, 75, 3, 33.425))
sketch1.addConstraint(Sketcher.Constraint("DistanceX", -1, 1, 76, 3, 52.475))
sketch1.addConstraint(Sketcher.Constraint("DistanceX", -1, 1, 77, 3, 41.045))
sketch1.addConstraint(Sketcher.Constraint("DistanceX", -1, 1, 78, 3, 63.905))
sketch1.addConstraint(Sketcher.Constraint("DistanceX", -1, 1, 79, 3, 71.525))
sketch1.addConstraint(Sketcher.Constraint("DistanceY", -1, 1, 70, 3, 8.9448))
sketch1.addConstraint(Sketcher.Constraint("DistanceY", -1, 1, 71, 3, 9.5798))
sketch1.addConstraint(Sketcher.Constraint("DistanceY", -1, 1, 72, 3, 16.1838))
sketch1.addConstraint(Sketcher.Constraint("DistanceY", -1, 1, 74, 3, 23.4228))
pad1 = body.newObject("PartDesign::Pad", "Pad")
pad1.Profile = sketch1
pad1.Length = 3
pad1.Midplane = True

doc.recompute()
